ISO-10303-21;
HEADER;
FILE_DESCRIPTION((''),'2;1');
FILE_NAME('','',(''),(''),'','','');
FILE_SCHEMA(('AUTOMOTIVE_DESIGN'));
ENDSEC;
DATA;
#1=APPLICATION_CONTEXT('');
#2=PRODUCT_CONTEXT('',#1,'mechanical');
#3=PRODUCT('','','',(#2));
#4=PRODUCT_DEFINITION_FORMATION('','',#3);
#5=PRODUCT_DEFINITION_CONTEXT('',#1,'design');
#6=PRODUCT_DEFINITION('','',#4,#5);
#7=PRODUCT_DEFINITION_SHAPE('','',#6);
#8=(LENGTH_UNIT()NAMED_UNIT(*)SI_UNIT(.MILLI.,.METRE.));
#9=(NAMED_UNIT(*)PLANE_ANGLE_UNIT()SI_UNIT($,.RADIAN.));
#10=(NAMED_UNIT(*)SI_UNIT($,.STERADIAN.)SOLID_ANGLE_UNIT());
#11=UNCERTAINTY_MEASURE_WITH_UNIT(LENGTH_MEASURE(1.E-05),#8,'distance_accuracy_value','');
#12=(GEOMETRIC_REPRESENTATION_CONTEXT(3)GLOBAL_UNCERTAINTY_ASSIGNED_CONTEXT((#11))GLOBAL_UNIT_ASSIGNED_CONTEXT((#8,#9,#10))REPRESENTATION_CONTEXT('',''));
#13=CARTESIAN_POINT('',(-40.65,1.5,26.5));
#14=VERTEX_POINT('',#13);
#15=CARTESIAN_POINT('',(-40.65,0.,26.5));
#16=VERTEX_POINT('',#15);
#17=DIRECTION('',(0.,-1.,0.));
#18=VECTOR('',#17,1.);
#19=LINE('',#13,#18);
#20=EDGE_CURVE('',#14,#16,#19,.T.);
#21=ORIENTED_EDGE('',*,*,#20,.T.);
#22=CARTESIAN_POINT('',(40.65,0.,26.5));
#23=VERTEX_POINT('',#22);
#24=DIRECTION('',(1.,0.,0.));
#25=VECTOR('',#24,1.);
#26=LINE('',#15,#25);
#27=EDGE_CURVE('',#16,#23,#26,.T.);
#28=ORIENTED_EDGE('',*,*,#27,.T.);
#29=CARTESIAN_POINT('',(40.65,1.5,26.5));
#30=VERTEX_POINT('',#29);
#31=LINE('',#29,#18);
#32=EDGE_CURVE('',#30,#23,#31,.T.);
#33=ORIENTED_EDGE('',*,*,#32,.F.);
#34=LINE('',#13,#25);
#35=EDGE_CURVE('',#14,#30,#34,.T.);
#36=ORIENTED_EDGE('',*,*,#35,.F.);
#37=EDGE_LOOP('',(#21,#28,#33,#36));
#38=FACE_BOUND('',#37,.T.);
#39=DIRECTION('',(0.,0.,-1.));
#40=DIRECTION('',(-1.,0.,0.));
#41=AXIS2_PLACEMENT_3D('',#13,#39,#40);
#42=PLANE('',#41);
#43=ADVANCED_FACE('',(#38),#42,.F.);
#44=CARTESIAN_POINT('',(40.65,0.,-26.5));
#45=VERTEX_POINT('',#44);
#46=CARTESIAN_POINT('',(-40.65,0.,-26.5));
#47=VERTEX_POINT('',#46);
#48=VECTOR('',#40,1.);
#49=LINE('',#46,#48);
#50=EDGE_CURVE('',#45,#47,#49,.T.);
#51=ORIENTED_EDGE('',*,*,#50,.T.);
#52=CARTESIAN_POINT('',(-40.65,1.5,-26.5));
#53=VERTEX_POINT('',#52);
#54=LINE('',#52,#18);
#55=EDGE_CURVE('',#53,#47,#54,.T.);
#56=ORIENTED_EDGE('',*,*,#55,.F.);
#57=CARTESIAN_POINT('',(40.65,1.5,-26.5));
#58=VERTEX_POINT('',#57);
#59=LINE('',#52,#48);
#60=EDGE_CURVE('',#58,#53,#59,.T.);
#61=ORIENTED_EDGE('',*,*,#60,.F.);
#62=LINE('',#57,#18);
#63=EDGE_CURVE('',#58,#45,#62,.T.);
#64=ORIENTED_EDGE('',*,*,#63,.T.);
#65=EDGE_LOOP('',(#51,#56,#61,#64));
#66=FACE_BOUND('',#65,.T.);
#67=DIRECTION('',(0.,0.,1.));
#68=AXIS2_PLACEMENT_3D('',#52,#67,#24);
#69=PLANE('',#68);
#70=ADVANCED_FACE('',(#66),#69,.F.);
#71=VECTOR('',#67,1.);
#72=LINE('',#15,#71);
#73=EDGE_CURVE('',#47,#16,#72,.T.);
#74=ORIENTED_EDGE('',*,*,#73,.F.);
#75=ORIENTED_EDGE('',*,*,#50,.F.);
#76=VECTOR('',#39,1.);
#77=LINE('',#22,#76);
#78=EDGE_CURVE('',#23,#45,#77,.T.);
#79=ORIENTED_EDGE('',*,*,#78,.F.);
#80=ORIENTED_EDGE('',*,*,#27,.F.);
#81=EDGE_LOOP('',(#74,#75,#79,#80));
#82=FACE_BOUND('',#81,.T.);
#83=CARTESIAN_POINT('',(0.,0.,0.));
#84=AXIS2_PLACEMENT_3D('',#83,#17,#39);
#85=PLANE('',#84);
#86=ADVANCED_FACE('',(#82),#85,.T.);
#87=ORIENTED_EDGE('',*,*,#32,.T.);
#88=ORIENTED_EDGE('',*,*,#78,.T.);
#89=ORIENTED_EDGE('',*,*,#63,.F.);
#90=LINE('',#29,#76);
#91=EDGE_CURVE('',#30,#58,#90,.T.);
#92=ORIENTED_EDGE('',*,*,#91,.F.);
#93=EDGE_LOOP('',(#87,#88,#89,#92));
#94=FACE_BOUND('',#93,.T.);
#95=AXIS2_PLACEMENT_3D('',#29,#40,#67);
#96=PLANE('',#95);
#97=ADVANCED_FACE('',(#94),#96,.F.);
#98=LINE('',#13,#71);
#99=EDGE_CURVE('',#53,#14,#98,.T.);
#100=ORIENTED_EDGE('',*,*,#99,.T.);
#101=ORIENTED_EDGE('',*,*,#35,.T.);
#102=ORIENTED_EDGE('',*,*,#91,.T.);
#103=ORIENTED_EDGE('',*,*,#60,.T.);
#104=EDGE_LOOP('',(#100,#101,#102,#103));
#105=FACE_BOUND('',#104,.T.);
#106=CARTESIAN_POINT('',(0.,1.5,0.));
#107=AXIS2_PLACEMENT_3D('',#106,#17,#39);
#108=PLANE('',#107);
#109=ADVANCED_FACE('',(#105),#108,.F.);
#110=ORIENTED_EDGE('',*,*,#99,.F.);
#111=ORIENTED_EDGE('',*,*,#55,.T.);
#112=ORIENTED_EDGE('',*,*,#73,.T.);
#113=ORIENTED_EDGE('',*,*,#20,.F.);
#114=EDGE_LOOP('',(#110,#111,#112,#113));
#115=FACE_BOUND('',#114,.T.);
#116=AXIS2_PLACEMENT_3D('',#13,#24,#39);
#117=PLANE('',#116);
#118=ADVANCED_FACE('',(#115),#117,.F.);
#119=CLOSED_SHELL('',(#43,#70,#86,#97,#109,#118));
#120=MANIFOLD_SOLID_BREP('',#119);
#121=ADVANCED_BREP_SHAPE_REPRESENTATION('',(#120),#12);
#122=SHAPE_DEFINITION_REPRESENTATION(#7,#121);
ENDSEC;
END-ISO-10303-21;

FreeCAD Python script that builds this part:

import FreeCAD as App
import Part
import Sketcher


def add_polygon(sketch, points):
    """Adds a closed chain of lines whose ends are joined by coincident constraints."""
    first, n = sketch.GeometryCount, len(points)
    for a, b in zip(points, points[1:] + points[:1]):
        sketch.addGeometry(Part.LineSegment(App.Vector(*a, 0), App.Vector(*b, 0)), False)
    for i in range(n):
        sketch.addConstraint(Sketcher.Constraint("Coincident", first + i, 2, first + (i + 1) % n, 1))

doc = App.newDocument("Part")
body = doc.addObject("PartDesign::Body", "Body")

sketch1 = body.newObject("Sketcher::SketchObject", "Sketch")
sketch1.AttachmentSupport = (doc.getObject("XZ_Plane"), [""])
sketch1.MapMode = "FlatFace"
add_polygon(sketch1, [(-40.65, -26.5), (-40.65, 26.5), (40.65, 26.5), (40.65, -26.5)])
sketch1.addConstraint(Sketcher.Constraint("Vertical", 0))
sketch1.addConstraint(Sketcher.Constraint("Horizontal", 1))
sketch1.addConstraint(Sketcher.Constraint("Vertical", 2))
sketch1.addConstraint(Sketcher.Constraint("Horizontal", 3))
sketch1.addConstraint(Sketcher.Constraint("Symmetric", 0, 2, 2, 2, -1, 1))
sketch1.addConstraint(Sketcher.Constraint("DistanceY", 0, 1, 0, 2, 53.0))
sketch1.addConstraint(Sketcher.Constraint("DistanceX", 1, 1, 1, 2, 81.3))
pad1 = body.newObject("PartDesign::Pad", "Pad")
pad1.Profile = sketch1
pad1.Length = 1.5
pad1.Reversed = True

doc.recompute()
